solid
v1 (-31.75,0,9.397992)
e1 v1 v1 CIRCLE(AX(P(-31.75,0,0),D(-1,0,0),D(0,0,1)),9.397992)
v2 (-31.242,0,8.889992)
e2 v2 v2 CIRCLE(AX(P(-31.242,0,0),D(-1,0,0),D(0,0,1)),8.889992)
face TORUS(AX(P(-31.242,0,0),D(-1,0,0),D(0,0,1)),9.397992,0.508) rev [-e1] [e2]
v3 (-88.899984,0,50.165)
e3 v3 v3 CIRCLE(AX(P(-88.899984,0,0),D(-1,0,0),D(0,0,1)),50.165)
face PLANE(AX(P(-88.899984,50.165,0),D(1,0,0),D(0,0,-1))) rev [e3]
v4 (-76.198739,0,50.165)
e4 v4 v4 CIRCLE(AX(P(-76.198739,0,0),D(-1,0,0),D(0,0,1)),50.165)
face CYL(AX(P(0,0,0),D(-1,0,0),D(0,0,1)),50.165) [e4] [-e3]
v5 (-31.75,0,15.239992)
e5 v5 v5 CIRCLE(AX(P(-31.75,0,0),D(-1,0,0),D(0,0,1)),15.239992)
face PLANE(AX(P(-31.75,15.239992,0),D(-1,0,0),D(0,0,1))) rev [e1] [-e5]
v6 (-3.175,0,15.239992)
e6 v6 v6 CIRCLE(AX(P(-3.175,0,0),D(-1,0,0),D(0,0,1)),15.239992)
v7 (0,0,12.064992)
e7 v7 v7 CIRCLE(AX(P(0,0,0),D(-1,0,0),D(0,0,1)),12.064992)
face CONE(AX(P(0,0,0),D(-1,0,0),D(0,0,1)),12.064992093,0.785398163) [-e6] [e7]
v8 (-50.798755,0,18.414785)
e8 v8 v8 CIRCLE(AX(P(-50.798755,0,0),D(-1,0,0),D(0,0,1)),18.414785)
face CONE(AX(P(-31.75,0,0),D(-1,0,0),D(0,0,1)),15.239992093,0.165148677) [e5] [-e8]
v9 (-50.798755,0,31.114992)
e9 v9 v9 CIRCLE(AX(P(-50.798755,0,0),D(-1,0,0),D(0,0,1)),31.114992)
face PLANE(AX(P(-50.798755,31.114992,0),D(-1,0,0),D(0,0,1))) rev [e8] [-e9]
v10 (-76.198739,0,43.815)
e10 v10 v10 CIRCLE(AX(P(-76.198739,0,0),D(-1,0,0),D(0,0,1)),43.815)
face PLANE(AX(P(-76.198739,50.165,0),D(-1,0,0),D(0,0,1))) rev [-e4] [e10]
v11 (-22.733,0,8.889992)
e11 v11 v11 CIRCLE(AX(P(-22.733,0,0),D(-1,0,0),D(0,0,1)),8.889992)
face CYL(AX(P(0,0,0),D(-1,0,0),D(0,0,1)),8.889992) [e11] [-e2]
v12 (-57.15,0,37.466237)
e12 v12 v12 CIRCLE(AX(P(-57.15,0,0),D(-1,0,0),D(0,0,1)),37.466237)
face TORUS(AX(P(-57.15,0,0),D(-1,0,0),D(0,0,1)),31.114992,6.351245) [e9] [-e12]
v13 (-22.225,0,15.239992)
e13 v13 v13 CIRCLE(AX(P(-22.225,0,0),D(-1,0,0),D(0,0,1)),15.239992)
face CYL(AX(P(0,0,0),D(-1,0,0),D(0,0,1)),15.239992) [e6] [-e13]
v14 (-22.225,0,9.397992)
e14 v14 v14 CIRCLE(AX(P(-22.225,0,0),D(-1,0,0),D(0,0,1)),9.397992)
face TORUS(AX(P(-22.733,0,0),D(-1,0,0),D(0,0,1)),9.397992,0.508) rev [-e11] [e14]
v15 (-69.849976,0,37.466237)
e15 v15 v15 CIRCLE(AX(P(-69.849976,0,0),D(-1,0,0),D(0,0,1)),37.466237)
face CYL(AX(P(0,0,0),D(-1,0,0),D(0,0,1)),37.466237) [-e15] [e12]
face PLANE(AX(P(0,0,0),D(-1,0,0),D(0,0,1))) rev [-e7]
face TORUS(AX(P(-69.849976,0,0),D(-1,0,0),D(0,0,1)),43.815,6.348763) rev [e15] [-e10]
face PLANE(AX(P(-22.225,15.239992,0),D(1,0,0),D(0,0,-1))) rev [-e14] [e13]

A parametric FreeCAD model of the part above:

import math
import FreeCAD as App
import Part
import Sketcher
Q = App.Units.Quantity

doc = App.newDocument("Part")
body = doc.addObject("PartDesign::Body", "Body")

# Sketch on XY plane
sketch1 = body.newObject("Sketcher::SketchObject", "Sketch")
sketch1.AttachmentSupport = (doc.getObject("XY_Plane"), [""])
sketch1.MapMode = "FlatFace"
sketch1.addGeometry([
    Part.LineSegment(App.Vector(-76.2, 50.2, 0), App.Vector(-88.9, 50.2, 0)),  # 0
    Part.LineSegment(App.Vector(-88.9, 50.2, 0), App.Vector(-88.9, 0, 0)),  # 1
    Part.LineSegment(App.Vector(-88.9, 0, 0), App.Vector(0, 0, 0)),  # 2
    Part.LineSegment(App.Vector(0, 0, 0), App.Vector(0, 12.1, 0)),  # 3
    Part.LineSegment(App.Vector(0, 12.1, 0), App.Vector(-3.2, 15.2, 0)),  # 4
    Part.LineSegment(App.Vector(-3.2, 15.2, 0), App.Vector(-22.2, 15.2, 0)),  # 5
    Part.LineSegment(App.Vector(-22.2, 15.2, 0), App.Vector(-22.2, 9.4, 0)),  # 6
    Part.ArcOfCircle(Part.Circle(App.Vector(-22.7, 9.4, 0), App.Vector(0, 0, 1), 0.5), math.radians(-90), math.radians(0)),  # 7
    Part.LineSegment(App.Vector(-22.7, 8.9, 0), App.Vector(-31.2, 8.9, 0)),  # 8
    Part.ArcOfCircle(Part.Circle(App.Vector(-31.2, 9.4, 0), App.Vector(0, 0, 1), 0.5), math.radians(180), math.radians(270)),  # 9
    Part.LineSegment(App.Vector(-31.8, 9.4, 0), App.Vector(-31.8, 15.2, 0)),  # 10
    Part.LineSegment(App.Vector(-31.8, 15.2, 0), App.Vector(-50.8, 18.4, 0)),  # 11
    Part.LineSegment(App.Vector(-50.8, 18.4, 0), App.Vector(-50.8, 31.1, 0)),  # 12
    Part.ArcOfCircle(Part.Circle(App.Vector(-57.2, 31.1, 0), App.Vector(0, 0, 1), 6.4), math.radians(0), math.radians(90)),  # 13
    Part.LineSegment(App.Vector(-57.1, 37.5, 0), App.Vector(-69.8, 37.5, 0)),  # 14
    Part.ArcOfCircle(Part.Circle(App.Vector(-69.8, 43.8, 0), App.Vector(0, 0, 1), 6.3), math.radians(180), math.radians(270)),  # 15
    Part.LineSegment(App.Vector(-76.2, 43.8, 0), App.Vector(-76.2, 50.2, 0)),  # 16
], False)
sketch1.addConstraint([
    Sketcher.Constraint("Coincident", 0, 2, 1, 1),
    Sketcher.Constraint("Coincident", 1, 2, 2, 1),
    Sketcher.Constraint("Coincident", 2, 2, 3, 1),
    Sketcher.Constraint("Coincident", 3, 2, 4, 1),
    Sketcher.Constraint("Coincident", 4, 2, 5, 1),
    Sketcher.Constraint("Coincident", 5, 2, 6, 1),
    Sketcher.Constraint("Tangent", 6, 2, 7, 2),
    Sketcher.Constraint("Tangent", 7, 1, 8, 1),
    Sketcher.Constraint("Tangent", 8, 2, 9, 2),
    Sketcher.Constraint("Tangent", 9, 1, 10, 1),
    Sketcher.Constraint("Coincident", 10, 2, 11, 1),
    Sketcher.Constraint("Coincident", 11, 2, 12, 1),
    Sketcher.Constraint("Tangent", 12, 2, 13, 1),
    Sketcher.Constraint("Tangent", 13, 2, 14, 1),
    Sketcher.Constraint("Tangent", 14, 2, 15, 2),
    Sketcher.Constraint("Tangent", 15, 1, 16, 1),
    Sketcher.Constraint("Coincident", 16, 2, 0, 1),
    Sketcher.Constraint("Horizontal", 0),
    Sketcher.Constraint("Vertical", 1),
    Sketcher.Constraint("Horizontal", 2),
    Sketcher.Constraint("Vertical", 3),
    Sketcher.Constraint("Horizontal", 5),
    Sketcher.Constraint("Vertical", 6),
    Sketcher.Constraint("Horizontal", 8),
    Sketcher.Constraint("Vertical", 10),
    Sketcher.Constraint("Vertical", 12),
    Sketcher.Constraint("Horizontal", 14),
    Sketcher.Constraint("Vertical", 16),
    Sketcher.Constraint("Coincident", 2, 2, -1, 1),
    Sketcher.Constraint("Equal", 7, 9),
    Sketcher.Constraint("Horizontal", 5, 2, 10, 2),
    Sketcher.Constraint("Radius", 7, Q("0.02 in")),
    Sketcher.Constraint("Angle", 4, Q("135 deg")),
    Sketcher.Constraint("DistanceX", 13, 2, 10, 2, Q("1 in")),
    Sketcher.Constraint("DistanceX", 5, 2, 5, 1, Q("0.75 in")),
    Sketcher.Constraint("DistanceY", 6, 2, 6, 1, Q("0.23 in")),
    Sketcher.Constraint("DistanceY", 16, 1, 16, 2, Q("0.25 in")),
    Sketcher.Constraint("DistanceX", 8, 2, 8, 1, Q("0.335 in")),
    Sketcher.Constraint("DistanceY", 1, 2, 1, 1, Q("1.975 in")),
    Sketcher.Constraint("DistanceX", 9, 3, -1, 1, Q("1.23 in")),
    Sketcher.Constraint("DistanceY", 3, 2, 13, 3, Q("0.75 in")),
    Sketcher.Constraint("Radius", 13, 6.351245),
    Sketcher.Constraint("Radius", 15, 6.348763),
    Sketcher.Constraint("Distance", 11, 19.311509),
    Sketcher.Constraint("DistanceX", 0, 2, 0, 1, 12.701245),
    Sketcher.Constraint("DistanceX", 2, 1, 2, 2, 88.899984),
])
revolution = body.newObject("PartDesign::Revolution", "Revolution")
revolution.Profile = sketch1
revolution.ReferenceAxis = (sketch1, ["H_Axis"])
revolution.Angle = 360

doc.recompute()
